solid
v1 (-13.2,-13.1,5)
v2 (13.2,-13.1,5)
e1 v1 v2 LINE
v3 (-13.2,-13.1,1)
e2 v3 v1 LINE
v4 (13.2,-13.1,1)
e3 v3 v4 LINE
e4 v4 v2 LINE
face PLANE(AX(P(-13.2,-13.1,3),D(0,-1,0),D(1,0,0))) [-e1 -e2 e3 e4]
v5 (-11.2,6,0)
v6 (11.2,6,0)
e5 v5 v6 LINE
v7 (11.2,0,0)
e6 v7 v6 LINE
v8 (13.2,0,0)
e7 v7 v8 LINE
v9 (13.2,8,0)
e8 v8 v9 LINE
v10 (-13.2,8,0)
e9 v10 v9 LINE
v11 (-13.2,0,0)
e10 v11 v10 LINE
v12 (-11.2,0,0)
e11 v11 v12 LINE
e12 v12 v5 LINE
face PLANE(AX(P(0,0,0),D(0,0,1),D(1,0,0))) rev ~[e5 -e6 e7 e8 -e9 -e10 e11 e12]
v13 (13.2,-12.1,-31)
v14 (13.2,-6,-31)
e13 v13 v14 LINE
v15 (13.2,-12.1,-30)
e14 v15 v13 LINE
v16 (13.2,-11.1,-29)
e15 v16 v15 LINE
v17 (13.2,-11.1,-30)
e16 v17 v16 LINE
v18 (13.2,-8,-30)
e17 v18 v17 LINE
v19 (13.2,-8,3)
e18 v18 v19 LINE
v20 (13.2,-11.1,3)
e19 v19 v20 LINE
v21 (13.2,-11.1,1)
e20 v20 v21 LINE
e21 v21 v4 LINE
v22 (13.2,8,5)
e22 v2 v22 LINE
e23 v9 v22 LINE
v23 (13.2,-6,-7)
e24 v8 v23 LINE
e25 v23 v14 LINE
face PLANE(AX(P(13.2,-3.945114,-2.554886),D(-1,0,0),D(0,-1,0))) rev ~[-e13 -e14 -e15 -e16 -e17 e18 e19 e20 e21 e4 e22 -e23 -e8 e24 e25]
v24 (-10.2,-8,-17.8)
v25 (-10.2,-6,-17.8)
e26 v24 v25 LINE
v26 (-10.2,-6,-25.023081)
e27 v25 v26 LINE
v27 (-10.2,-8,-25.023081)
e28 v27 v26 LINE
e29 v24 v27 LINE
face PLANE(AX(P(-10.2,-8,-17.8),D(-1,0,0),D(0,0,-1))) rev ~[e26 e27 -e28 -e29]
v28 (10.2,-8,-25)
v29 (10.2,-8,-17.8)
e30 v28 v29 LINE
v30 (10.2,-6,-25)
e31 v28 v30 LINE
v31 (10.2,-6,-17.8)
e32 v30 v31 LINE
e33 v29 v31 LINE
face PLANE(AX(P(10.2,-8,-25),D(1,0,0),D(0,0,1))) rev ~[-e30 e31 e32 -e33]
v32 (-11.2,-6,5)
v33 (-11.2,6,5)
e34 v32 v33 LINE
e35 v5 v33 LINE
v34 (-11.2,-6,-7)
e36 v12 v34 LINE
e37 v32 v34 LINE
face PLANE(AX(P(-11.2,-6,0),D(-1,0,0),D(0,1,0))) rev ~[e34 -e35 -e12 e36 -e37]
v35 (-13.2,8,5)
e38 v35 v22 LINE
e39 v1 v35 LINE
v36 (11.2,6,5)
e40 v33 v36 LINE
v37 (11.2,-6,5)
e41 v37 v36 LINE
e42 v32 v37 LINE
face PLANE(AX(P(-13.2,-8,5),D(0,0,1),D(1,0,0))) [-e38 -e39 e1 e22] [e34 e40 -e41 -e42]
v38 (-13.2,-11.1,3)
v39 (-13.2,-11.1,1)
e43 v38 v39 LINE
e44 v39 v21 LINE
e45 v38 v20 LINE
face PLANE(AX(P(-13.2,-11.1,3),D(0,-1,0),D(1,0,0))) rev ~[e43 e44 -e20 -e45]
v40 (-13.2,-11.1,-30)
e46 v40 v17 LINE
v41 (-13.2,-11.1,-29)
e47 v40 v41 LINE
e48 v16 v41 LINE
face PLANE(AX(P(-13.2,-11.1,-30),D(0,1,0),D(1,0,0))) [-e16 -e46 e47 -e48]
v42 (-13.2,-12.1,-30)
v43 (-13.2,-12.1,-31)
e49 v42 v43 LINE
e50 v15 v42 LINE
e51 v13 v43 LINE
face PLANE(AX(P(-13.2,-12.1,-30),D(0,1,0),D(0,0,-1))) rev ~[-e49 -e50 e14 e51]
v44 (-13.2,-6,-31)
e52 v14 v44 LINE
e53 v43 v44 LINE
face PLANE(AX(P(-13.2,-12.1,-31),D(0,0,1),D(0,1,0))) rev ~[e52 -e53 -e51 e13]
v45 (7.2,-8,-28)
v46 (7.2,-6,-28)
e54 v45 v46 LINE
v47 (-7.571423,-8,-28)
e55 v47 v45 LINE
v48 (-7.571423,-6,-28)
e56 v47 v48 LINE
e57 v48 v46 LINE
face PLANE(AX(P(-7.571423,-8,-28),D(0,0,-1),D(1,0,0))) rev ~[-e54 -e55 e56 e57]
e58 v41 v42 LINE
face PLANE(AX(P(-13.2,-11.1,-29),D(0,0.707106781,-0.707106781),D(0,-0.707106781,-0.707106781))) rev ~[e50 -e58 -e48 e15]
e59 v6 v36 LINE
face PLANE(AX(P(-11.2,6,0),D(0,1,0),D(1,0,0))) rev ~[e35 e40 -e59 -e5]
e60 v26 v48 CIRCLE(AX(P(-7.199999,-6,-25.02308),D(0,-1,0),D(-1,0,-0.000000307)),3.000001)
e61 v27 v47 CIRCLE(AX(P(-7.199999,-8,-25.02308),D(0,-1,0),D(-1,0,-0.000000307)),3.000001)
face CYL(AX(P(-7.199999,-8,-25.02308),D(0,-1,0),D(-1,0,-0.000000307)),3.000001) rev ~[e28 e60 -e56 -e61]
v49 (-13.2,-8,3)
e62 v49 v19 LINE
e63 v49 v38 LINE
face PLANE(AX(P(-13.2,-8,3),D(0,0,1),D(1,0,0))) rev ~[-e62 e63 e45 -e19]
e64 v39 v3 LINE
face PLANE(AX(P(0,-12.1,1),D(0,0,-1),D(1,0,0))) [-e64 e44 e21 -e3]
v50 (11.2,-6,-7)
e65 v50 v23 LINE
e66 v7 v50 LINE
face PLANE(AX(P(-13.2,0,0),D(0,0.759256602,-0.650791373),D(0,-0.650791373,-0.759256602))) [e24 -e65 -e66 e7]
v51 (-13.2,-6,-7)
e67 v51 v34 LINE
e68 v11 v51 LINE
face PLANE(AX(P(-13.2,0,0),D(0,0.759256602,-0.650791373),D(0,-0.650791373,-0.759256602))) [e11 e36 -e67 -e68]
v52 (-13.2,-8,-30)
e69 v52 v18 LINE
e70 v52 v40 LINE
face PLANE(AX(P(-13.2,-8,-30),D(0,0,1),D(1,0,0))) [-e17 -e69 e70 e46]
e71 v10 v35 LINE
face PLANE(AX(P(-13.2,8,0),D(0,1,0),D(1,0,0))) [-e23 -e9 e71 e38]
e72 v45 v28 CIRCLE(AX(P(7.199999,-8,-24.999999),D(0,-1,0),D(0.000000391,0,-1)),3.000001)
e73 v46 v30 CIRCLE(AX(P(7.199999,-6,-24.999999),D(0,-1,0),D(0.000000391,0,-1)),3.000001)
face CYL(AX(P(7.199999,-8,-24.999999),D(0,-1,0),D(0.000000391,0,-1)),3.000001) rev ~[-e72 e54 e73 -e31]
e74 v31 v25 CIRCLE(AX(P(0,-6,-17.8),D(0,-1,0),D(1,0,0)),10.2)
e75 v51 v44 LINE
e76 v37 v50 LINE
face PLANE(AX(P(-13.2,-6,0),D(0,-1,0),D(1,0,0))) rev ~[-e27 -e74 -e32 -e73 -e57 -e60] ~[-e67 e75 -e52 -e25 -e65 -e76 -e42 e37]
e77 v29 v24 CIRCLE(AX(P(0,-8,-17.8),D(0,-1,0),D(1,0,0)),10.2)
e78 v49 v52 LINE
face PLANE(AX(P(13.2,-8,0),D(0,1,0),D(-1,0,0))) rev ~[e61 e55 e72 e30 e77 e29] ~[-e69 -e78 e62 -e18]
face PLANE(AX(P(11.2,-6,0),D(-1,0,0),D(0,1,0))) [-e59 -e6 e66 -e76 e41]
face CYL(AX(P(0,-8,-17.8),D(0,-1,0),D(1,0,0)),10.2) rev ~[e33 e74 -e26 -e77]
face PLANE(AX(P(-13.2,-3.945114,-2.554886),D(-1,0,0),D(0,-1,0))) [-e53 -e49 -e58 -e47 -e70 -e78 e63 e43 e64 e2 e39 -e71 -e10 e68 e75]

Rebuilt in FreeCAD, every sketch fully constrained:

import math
import FreeCAD as App
import Part
import Sketcher
from FreeCAD import Vector
Q = App.Units.Quantity


def add_polygon(sketch, points):
    """Adds a closed chain of lines whose ends are joined by coincident constraints."""
    first, n = sketch.GeometryCount, len(points)
    for a, b in zip(points, points[1:] + points[:1]):
        sketch.addGeometry(Part.LineSegment(App.Vector(*a, 0), App.Vector(*b, 0)), False)
    for i in range(n):
        sketch.addConstraint(Sketcher.Constraint("Coincident", first + i, 2, first + (i + 1) % n, 1))

doc = App.newDocument("Part")
body = doc.addObject("PartDesign::Body", "Body")

# Sketch on XY plane
sketch1 = body.newObject("Sketcher::SketchObject", "Sketch")
sketch1.AttachmentSupport = (doc.getObject("XY_Plane"), [""])
sketch1.MapMode = "FlatFace"
add_polygon(sketch1, [(-13.2, 8), (-13.2, -8), (13.2, -8), (13.2, 8)])  # lines 0-3
add_polygon(sketch1, [(11.2, -6), (-11.2, -6), (-11.2, 6), (11.2, 6)])  # lines 4-7
sketch1.addConstraint([
    Sketcher.Constraint("Vertical", 0),
    Sketcher.Constraint("Horizontal", 1),
    Sketcher.Constraint("Vertical", 2),
    Sketcher.Constraint("Horizontal", 3),
    Sketcher.Constraint("Horizontal", 4),
    Sketcher.Constraint("Vertical", 5),
    Sketcher.Constraint("Horizontal", 6),
    Sketcher.Constraint("Vertical", 7),
    Sketcher.Constraint("Symmetric", 0, 2, 2, 2, -1, 1),
    Sketcher.Constraint("Symmetric", 4, 2, 6, 2, -1, 1),
    Sketcher.Constraint("DistanceY", 0, 2, 0, 1, Q("16 mm")),
    Sketcher.Constraint("DistanceY", 5, 1, 5, 2, Q("12 mm")),
    Sketcher.Constraint("DistanceX", 1, 1, 1, 2, Q("26.4 mm")),
    Sketcher.Constraint("DistanceX", 4, 2, 4, 1, Q("22.4 mm")),
])
pad1 = body.newObject("PartDesign::Pad", "Pad")
pad1.Profile = sketch1
pad1.Length = 5

# Sketch on XY plane
sketch2 = body.newObject("Sketcher::SketchObject", "Sketch001")
sketch2.AttachmentSupport = (doc.getObject("XY_Plane"), [""])
sketch2.MapMode = "FlatFace"
add_polygon(sketch2, [(13.2, -8), (-13.2, -8), (-13.2, -6), (13.2, -6)])  # lines 0-3
sketch2.addConstraint([
    Sketcher.Constraint("Horizontal", 0),
    Sketcher.Constraint("Vertical", 1),
    Sketcher.Constraint("Horizontal", 2),
    Sketcher.Constraint("Vertical", 3),
    Sketcher.Constraint("DistanceY", 1, 1, 1, 2, Q("2 mm")),
    Sketcher.Constraint("DistanceX", 0, 2, 0, 1, Q("26.4 mm")),
    Sketcher.Constraint("DistanceY", 0, 2, -1, 1, Q("8 mm")),
    Sketcher.Constraint("DistanceX", 0, 2, -1, 1, Q("13.2 mm")),
])
pad2 = body.newObject("PartDesign::Pad", "Pad001")
pad2.Profile = sketch2
pad2.Length = 32
pad2.Reversed = True

# Sketch on XZ plane
sketch3 = body.newObject("Sketcher::SketchObject", "Sketch002")
sketch3.AttachmentSupport = (doc.getObject("XZ_Plane"), [""])
sketch3.MapMode = "FlatFace"
sketch3.AttachmentOffset = App.Placement(Vector(0, 0, 8), App.Rotation())
add_polygon(sketch3, [(-13.2, 5), (-13.2, 3), (13.2, 3), (13.2, 5)])  # lines 0-3
add_polygon(sketch3, [(-13.2, -30), (-13.2, -32), (13.2, -32), (13.2, -30)])  # lines 4-7
sketch3.addConstraint([
    Sketcher.Constraint("Vertical", 0),
    Sketcher.Constraint("Horizontal", 1),
    Sketcher.Constraint("Vertical", 2),
    Sketcher.Constraint("Horizontal", 3),
    Sketcher.Constraint("Vertical", 4),
    Sketcher.Constraint("Horizontal", 5),
    Sketcher.Constraint("Vertical", 6),
    Sketcher.Constraint("Horizontal", 7),
    Sketcher.Constraint("Vertical", 3, 2, 4, 2),
    Sketcher.Constraint("Vertical", 2, 2, 5, 2),
    Sketcher.Constraint("Equal", 2, 4),
    Sketcher.Constraint("DistanceY", 0, 2, 0, 1, Q("2 mm")),
    Sketcher.Constraint("DistanceX", 1, 1, 1, 2, Q("26.4 mm")),
    Sketcher.Constraint("DistanceY", -1, 1, 0, 2, Q("3 mm")),
    Sketcher.Constraint("DistanceY", 4, 2, -1, 1, Q("32 mm")),
    Sketcher.Constraint("DistanceX", 0, 2, -1, 1, Q("13.2 mm")),
])
pad3 = body.newObject("PartDesign::Pad", "Pad002")
pad3.Profile = sketch3
pad3.Length = 5.1

# Sketch on XY plane
sketch4 = body.newObject("Sketcher::SketchObject", "Sketch003")
sketch4.AttachmentSupport = (doc.getObject("XY_Plane"), [""])
sketch4.MapMode = "FlatFace"
sketch4.AttachmentOffset = App.Placement(Vector(0, 0, 3), App.Rotation())
add_polygon(sketch4, [(-13.2, -13.1), (-13.2, -11.1), (13.2, -11.1), (13.2, -13.1)])  # lines 0-3
sketch4.addConstraint([
    Sketcher.Constraint("Vertical", 0),
    Sketcher.Constraint("Horizontal", 1),
    Sketcher.Constraint("Vertical", 2),
    Sketcher.Constraint("Horizontal", 3),
    Sketcher.Constraint("DistanceY", 0, 1, 0, 2, Q("2 mm")),
    Sketcher.Constraint("DistanceX", 1, 1, 1, 2, Q("26.4 mm")),
    Sketcher.Constraint("DistanceX", 0, 2, -1, 1, Q("13.2 mm")),
    Sketcher.Constraint("DistanceY", 0, 2, -1, 1, Q("11.1 mm")),
])
pad4 = body.newObject("PartDesign::Pad", "Pad003")
pad4.Profile = sketch4
pad4.Length = 2
pad4.Reversed = True

# Sketch on XY plane
sketch5 = body.newObject("Sketcher::SketchObject", "Sketch004")
sketch5.AttachmentSupport = (doc.getObject("XY_Plane"), [""])
sketch5.MapMode = "FlatFace"
sketch5.AttachmentOffset = App.Placement(Vector(0, 0, -30), App.Rotation())
add_polygon(sketch5, [(-13.2, -11.1), (-13.2, -13.1), (13.2, -13.1), (13.2, -11.1)])  # lines 0-3
sketch5.addConstraint([
    Sketcher.Constraint("Vertical", 0),
    Sketcher.Constraint("Horizontal", 1),
    Sketcher.Constraint("Vertical", 2),
    Sketcher.Constraint("Horizontal", 3),
    Sketcher.Constraint("DistanceY", 0, 2, 0, 1, Q("2 mm")),
    Sketcher.Constraint("DistanceX", 1, 1, 1, 2, Q("26.4 mm")),
    Sketcher.Constraint("DistanceX", 0, 2, -1, 1, Q("13.2 mm")),
    Sketcher.Constraint("DistanceY", 0, 2, -1, 1, Q("13.1 mm")),
])
pad5 = body.newObject("PartDesign::Pad", "Pad004")
pad5.Profile = sketch5
pad5.Length = 1

# Sketch on YZ plane
sketch6 = body.newObject("Sketcher::SketchObject", "Sketch005")
sketch6.AttachmentSupport = (doc.getObject("YZ_Plane"), [""])
sketch6.MapMode = "FlatFace"
sketch6.AttachmentOffset = App.Placement(Vector(0, 0, -13.2), App.Rotation())
add_polygon(sketch6, [(-11.1, -29), (-12.1, -30), (-12.1, -31), (-6, -31), (-6, -32), (-13.1, -32), (-13.1, -29)])  # lines 0-6
sketch6.addConstraint([
    Sketcher.Constraint("Vertical", 1),
    Sketcher.Constraint("Horizontal", 2),
    Sketcher.Constraint("Vertical", 3),
    Sketcher.Constraint("Horizontal", 4),
    Sketcher.Constraint("Vertical", 5),
    Sketcher.Constraint("Horizontal", 6),
    Sketcher.Constraint("Equal", 1, 3),
    Sketcher.Constraint("DistanceX", 6, 1, 6, 2, Q("2 mm")),
    Sketcher.Constraint("DistanceY", 1, 2, 1, 1, Q("1 mm")),
    Sketcher.Constraint("DistanceY", 5, 1, 5, 2, Q("3 mm")),
    Sketcher.Constraint("Angle", 0, Q("-135 deg")),
    Sketcher.Constraint("DistanceX", 2, 1, 2, 2, Q("6.1 mm")),
    Sketcher.Constraint("DistanceY", 0, 2, -1, 1, Q("30 mm")),
    Sketcher.Constraint("DistanceX", 2, 2, -1, 1, Q("6 mm")),
])
pocket1 = body.newObject("PartDesign::Pocket", "Pocket")
pocket1.Profile = sketch6
pocket1.Type = "ThroughAll"
pocket1.Reversed = True

# Sketch on YZ plane
sketch7 = body.newObject("Sketcher::SketchObject", "Sketch006")
sketch7.AttachmentSupport = (doc.getObject("YZ_Plane"), [""])
sketch7.MapMode = "FlatFace"
sketch7.AttachmentOffset = App.Placement(Vector(0, 0, -13.2), App.Rotation())
add_polygon(sketch7, [(-6, 0), (-6, -31), (-12.1, -31), (-12.1, -30), (-11.1, -29), (-11.1, -30), (-8, -30), (-8, 3), (-11.1, 3), (-11.1, 1), (-13.1, 1), (-13.1, 5), (8, 5), (8, 0)])  # lines 0-13
sketch7.addConstraint([
    Sketcher.Constraint("Vertical", 0),
    Sketcher.Constraint("Horizontal", 1),
    Sketcher.Constraint("Vertical", 2),
    Sketcher.Constraint("Vertical", 4),
    Sketcher.Constraint("Horizontal", 5),
    Sketcher.Constraint("Vertical", 6),
    Sketcher.Constraint("Horizontal", 7),
    Sketcher.Constraint("Vertical", 8),
    Sketcher.Constraint("Horizontal", 9),
    Sketcher.Constraint("Vertical", 10),
    Sketcher.Constraint("Horizontal", 11),
    Sketcher.Constraint("Vertical", 12),
    Sketcher.Constraint("Horizontal", 13),
    Sketcher.Constraint("PointOnObject", 12, 2, -1),
    Sketcher.Constraint("Horizontal", 2, 2, 4, 2),
    Sketcher.Constraint("Vertical", 4, 2, 7, 2),
    Sketcher.Constraint("Equal", 2, 4),
    Sketcher.Constraint("Equal", 9, 8),
    Sketcher.Constraint("DistanceX", 9, 2, 9, 1, Q("2 mm")),
    Sketcher.Constraint("DistanceX", 13, 2, 13, 1, Q("14 mm")),
    Sketcher.Constraint("DistanceY", 0, 2, 0, 1, Q("31 mm")),
    Sketcher.Constraint("DistanceY", 2, 1, 2, 2, Q("1 mm")),
    Sketcher.Constraint("DistanceY", 6, 1, 6, 2, Q("33 mm")),
    Sketcher.Constraint("DistanceY", 10, 1, 10, 2, Q("4 mm")),
    Sketcher.Constraint("Angle", 3, Q("45 deg")),
    Sketcher.Constraint("DistanceX", 1, 2, 1, 1, Q("6.1 mm")),
    Sketcher.Constraint("DistanceX", 5, 1, 5, 2, Q("3.1 mm")),
    Sketcher.Constraint("DistanceX", 0, 2, -1, 1, Q("6 mm")),
])
pad6 = body.newObject("PartDesign::Pad", "Pad005")
pad6.Profile = sketch7
pad6.Length = 2

# Sketch on YZ plane
sketch8 = body.newObject("Sketcher::SketchObject", "Sketch007")
sketch8.AttachmentSupport = (doc.getObject("YZ_Plane"), [""])
sketch8.MapMode = "FlatFace"
sketch8.AttachmentOffset = App.Placement(Vector(0, 0, -13.2), App.Rotation())
add_polygon(sketch8, [(-6, -7), (-6, 0), (0, 0)])  # lines 0-2
sketch8.addConstraint([
    Sketcher.Constraint("Vertical", 0),
    Sketcher.Constraint("Horizontal", 1),
    Sketcher.Constraint("Coincident", 1, 2, -1, 1),
    Sketcher.Constraint("DistanceX", 1, 1, 1, 2, Q("6 mm")),
    Sketcher.Constraint("DistanceY", 0, 1, 0, 2, Q("7 mm")),
])
pad7 = body.newObject("PartDesign::Pad", "Pad006")
pad7.Profile = sketch8
pad7.Length = 26.4

# Sketch on XY plane
sketch9 = body.newObject("Sketcher::SketchObject", "Sketch008")
sketch9.AttachmentSupport = (doc.getObject("XY_Plane"), [""])
sketch9.MapMode = "FlatFace"
add_polygon(sketch9, [(-11.2, 0), (-11.2, -6), (11.2, -6), (11.2, 0)])  # lines 0-3
sketch9.addConstraint([
    Sketcher.Constraint("Vertical", 0),
    Sketcher.Constraint("Horizontal", 1),
    Sketcher.Constraint("Vertical", 2),
    Sketcher.Constraint("Horizontal", 3),
    Sketcher.Constraint("Symmetric", 2, 2, 3, 2, -1, 1),
    Sketcher.Constraint("DistanceY", 0, 2, 0, 1, Q("6 mm")),
    Sketcher.Constraint("DistanceX", 1, 1, 1, 2, Q("22.4 mm")),
])
pocket2 = body.newObject("PartDesign::Pocket", "Pocket001")
pocket2.Profile = sketch9
pocket2.Type = "ThroughAll"

# Sketch on XZ plane
sketch10 = body.newObject("Sketcher::SketchObject", "Sketch009")
sketch10.AttachmentSupport = (doc.getObject("XZ_Plane"), [""])
sketch10.MapMode = "FlatFace"
sketch10.AttachmentOffset = App.Placement(Vector(0, 0, 8), App.Rotation())
sketch10.addGeometry([
    Part.ArcOfCircle(Part.Circle(Vector(-7.199999, -25.02308, 0), Vector(0, 0, 1), 3.000001), math.radians(-179.999982), math.radians(-97.111929)),  # 0
    Part.LineSegment(Vector(-7.571423, -28, 0), Vector(7.2, -28, 0)),  # 1
    Part.ArcOfCircle(Part.Circle(Vector(7.199999, -24.999999, 0), Vector(0, 0, 1), 3.000001), math.radians(-89.999978), math.radians(-0.000022)),  # 2
    Part.LineSegment(Vector(10.2, -25, 0), Vector(10.2, -17.8, 0)),  # 3
    Part.ArcOfCircle(Part.Circle(Vector(0, -17.8, 0), Vector(0, 0, 1), 10.2), math.radians(0), math.radians(180)),  # 4
    Part.LineSegment(Vector(-10.2, -17.8, 0), Vector(-10.2, -25.023081, 0)),  # 5
], False)
sketch10.addConstraint([
    Sketcher.Constraint("Coincident", 0, 2, 1, 1),
    Sketcher.Constraint("Tangent", 1, 2, 2, 1),
    Sketcher.Constraint("Tangent", 2, 2, 3, 1),
    Sketcher.Constraint("Tangent", 3, 2, 4, 1),
    Sketcher.Constraint("Tangent", 4, 2, 5, 1),
    Sketcher.Constraint("Tangent", 5, 2, 0, 1),
    Sketcher.Constraint("Horizontal", 1),
    Sketcher.Constraint("Vertical", 3),
    Sketcher.Constraint("Vertical", 5),
    Sketcher.Constraint("Equal", 0, 2),
    Sketcher.Constraint("PointOnObject", 4, 3, -2),
    Sketcher.Constraint("Radius", 0, Q("3.000001 mm")),
    Sketcher.Constraint("Radius", 4, Q("10.2 mm")),
    Sketcher.Constraint("DistanceY", 3, 1, 3, 2, Q("7.2 mm")),
    Sketcher.Constraint("DistanceY", 2, 3, -1, 1, Q("24.999999 mm")),
    Sketcher.Constraint("DistanceY", 5, 2, 5, 1, Q("7.223081 mm")),
])
pocket3 = body.newObject("PartDesign::Pocket", "Pocket002")
pocket3.Profile = sketch10
pocket3.Length = 25

doc.recompute()
